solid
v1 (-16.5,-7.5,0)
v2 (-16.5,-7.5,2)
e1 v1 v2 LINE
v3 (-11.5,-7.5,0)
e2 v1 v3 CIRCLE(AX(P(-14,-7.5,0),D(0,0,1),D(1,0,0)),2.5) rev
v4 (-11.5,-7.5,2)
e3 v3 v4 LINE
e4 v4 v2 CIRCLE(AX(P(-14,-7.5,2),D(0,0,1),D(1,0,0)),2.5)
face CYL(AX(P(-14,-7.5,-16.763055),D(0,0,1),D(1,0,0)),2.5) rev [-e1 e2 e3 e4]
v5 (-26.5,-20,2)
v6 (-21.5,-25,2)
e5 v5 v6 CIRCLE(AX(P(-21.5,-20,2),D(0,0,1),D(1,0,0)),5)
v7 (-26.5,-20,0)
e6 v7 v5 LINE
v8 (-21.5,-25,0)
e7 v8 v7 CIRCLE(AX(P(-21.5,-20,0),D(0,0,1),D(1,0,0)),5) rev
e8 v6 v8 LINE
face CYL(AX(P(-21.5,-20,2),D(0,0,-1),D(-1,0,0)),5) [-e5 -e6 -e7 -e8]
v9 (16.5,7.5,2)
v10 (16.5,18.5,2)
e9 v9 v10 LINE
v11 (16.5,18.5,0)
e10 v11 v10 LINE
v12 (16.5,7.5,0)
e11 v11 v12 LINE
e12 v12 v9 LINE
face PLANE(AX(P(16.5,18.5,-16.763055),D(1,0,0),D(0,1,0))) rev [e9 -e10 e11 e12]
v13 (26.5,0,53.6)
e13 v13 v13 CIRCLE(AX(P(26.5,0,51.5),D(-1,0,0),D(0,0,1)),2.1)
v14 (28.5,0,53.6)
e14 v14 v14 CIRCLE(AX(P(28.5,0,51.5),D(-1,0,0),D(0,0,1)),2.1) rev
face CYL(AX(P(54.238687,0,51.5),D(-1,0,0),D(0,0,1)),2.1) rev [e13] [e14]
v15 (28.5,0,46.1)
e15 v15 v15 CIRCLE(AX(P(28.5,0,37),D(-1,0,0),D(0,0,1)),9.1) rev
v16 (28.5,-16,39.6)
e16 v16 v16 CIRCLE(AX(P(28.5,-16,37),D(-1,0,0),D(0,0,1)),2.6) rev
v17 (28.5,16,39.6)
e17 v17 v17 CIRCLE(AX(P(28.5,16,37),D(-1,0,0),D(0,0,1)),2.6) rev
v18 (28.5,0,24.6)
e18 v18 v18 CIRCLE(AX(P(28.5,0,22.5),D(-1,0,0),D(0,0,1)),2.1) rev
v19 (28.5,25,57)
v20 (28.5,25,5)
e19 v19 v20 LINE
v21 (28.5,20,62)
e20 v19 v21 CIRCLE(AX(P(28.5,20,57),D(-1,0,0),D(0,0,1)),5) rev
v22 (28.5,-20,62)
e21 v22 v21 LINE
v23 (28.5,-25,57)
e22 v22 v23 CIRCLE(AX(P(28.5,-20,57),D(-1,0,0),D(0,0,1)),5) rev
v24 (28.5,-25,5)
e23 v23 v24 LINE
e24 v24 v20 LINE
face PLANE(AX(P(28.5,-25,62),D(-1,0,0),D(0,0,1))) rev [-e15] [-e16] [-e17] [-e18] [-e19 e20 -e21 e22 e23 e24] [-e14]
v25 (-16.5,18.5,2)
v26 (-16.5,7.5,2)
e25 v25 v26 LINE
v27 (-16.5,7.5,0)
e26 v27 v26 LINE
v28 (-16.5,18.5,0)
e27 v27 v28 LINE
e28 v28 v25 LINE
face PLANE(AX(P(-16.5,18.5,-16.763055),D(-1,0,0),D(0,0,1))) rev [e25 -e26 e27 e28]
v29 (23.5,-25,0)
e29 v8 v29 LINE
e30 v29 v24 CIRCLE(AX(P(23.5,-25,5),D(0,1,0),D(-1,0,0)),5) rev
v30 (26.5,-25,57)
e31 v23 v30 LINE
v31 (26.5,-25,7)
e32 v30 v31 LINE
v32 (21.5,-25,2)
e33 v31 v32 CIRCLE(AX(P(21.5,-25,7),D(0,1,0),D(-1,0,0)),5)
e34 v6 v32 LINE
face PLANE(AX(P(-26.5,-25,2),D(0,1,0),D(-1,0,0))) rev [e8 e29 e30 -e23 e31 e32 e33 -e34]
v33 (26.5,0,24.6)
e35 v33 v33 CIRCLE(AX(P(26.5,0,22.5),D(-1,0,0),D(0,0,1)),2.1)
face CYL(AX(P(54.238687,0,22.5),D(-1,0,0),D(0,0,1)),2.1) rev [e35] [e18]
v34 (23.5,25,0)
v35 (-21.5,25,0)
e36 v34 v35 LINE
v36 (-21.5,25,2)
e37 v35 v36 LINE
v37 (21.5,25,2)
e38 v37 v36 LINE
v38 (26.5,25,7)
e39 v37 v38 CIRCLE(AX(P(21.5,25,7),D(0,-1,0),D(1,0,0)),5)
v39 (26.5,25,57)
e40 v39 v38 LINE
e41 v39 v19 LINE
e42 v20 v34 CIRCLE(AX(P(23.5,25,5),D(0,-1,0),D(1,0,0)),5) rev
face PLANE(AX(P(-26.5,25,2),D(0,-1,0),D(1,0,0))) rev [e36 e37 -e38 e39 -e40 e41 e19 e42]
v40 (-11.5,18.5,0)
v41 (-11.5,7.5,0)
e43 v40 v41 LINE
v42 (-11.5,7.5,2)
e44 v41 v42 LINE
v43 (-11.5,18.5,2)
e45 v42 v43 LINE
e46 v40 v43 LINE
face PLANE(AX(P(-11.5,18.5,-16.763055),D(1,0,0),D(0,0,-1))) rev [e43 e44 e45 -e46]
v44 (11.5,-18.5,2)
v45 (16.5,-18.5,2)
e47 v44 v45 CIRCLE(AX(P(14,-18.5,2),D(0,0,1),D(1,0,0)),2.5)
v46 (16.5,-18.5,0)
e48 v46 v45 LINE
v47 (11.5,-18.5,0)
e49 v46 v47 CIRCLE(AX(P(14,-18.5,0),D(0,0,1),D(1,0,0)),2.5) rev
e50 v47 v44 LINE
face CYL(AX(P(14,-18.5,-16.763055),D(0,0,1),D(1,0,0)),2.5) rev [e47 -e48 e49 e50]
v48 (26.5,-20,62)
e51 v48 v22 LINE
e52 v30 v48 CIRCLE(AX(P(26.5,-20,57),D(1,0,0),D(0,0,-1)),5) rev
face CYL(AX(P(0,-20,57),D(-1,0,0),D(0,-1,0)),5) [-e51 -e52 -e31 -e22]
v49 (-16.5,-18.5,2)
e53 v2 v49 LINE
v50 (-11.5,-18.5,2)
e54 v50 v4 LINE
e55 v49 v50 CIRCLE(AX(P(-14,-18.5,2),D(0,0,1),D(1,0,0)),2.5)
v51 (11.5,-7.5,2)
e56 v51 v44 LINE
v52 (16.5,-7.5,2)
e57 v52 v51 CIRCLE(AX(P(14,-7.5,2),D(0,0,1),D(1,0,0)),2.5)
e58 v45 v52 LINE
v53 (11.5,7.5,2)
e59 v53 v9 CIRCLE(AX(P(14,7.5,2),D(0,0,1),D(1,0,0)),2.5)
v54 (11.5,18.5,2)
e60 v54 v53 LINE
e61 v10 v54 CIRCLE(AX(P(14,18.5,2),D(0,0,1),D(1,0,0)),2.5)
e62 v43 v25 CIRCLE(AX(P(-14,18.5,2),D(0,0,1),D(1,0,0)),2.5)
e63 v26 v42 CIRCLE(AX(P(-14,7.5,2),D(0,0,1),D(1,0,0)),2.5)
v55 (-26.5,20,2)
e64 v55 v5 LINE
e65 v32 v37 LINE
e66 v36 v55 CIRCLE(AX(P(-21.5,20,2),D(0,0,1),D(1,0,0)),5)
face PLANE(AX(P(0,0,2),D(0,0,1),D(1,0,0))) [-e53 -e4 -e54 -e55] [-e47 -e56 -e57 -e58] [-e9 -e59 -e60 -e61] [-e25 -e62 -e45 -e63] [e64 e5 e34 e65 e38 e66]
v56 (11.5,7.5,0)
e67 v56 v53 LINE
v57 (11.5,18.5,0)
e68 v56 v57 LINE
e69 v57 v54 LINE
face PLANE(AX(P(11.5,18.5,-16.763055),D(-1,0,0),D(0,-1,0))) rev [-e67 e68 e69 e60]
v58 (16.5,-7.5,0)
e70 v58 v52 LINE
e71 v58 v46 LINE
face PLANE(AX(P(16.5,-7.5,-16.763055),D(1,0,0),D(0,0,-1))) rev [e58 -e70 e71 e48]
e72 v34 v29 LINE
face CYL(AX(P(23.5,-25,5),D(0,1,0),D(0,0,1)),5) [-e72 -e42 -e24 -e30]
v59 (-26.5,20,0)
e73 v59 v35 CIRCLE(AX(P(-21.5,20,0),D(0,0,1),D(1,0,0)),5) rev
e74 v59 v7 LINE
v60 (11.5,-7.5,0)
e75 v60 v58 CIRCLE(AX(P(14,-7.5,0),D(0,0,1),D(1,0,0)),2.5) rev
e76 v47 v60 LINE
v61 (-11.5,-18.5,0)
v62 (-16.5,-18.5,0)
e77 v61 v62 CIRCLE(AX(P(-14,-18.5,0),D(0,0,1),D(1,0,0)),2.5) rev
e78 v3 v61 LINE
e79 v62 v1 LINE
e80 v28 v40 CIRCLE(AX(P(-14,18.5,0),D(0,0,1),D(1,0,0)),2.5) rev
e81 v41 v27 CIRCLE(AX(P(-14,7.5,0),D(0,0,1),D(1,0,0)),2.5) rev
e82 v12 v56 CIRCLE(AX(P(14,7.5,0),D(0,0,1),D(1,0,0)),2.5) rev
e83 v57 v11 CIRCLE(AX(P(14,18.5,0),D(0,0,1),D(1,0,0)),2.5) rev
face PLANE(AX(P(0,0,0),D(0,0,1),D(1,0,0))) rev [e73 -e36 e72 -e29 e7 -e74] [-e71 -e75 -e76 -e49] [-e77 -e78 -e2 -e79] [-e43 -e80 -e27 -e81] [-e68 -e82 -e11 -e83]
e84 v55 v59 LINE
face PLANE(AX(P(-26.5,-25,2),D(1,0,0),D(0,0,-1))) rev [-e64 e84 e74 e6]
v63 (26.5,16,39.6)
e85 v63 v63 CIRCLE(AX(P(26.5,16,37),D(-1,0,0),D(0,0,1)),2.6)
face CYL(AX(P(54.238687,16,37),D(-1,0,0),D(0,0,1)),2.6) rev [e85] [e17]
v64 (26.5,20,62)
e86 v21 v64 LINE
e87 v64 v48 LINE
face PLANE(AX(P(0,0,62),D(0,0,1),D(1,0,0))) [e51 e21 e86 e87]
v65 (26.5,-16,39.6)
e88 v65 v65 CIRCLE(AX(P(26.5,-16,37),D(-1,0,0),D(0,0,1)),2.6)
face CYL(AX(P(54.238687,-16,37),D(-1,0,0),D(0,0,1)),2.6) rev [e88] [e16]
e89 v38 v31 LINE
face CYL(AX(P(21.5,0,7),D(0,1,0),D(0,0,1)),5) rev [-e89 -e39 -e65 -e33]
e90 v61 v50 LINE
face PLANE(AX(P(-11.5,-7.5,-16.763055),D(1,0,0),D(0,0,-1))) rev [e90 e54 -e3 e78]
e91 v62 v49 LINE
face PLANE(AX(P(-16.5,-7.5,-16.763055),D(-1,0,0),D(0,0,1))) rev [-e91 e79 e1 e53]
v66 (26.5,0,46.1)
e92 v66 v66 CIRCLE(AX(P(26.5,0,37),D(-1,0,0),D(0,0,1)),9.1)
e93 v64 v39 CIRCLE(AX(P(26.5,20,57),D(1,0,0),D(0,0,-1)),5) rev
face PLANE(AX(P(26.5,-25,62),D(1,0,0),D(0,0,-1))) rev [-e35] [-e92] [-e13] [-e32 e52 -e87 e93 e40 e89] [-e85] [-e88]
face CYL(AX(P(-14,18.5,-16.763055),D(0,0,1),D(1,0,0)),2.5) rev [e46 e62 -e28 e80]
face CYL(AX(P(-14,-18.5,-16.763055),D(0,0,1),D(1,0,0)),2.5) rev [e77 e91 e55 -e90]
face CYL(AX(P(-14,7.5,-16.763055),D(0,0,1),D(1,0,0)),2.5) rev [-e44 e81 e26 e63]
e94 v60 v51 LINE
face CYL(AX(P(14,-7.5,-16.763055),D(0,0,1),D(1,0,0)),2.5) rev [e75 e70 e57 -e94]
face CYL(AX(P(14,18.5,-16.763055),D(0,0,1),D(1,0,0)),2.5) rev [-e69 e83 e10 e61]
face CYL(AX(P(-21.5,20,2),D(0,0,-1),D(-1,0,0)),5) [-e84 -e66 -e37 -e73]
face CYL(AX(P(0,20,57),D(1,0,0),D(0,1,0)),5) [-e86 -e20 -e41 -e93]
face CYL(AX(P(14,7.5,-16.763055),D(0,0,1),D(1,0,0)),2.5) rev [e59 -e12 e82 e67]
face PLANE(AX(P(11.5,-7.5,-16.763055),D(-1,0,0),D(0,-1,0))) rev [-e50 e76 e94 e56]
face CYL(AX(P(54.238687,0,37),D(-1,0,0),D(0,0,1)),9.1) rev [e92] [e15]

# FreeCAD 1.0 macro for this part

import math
import FreeCAD as App
import Part
import Sketcher

V = App.Vector
Q = App.Units.Quantity


def edges_at(feature, points):
    """Names of the edges that pass closest to the given points."""
    edges = feature.Shape.Edges
    near = lambda p: min(range(len(edges)), key=lambda i: edges[i].distToShape(Part.Vertex(*p))[0])
    return sorted({f"Edge{near(p) + 1}" for p in points})

doc = App.newDocument("Part")
body = doc.addObject("PartDesign::Body", "Body")

# Sketch on XY plane
sketch1 = body.newObject("Sketcher::SketchObject", "Sketch")
sketch1.AttachmentSupport = (doc.getObject("XY_Plane"), [""])
sketch1.MapMode = "FlatFace"
sketch1.addGeometry([
    Part.LineSegment(V(-26, -25, 0), V(26, -25, 0)),
    Part.LineSegment(V(26, -25, 0), V(26, 25, 0)),
    Part.LineSegment(V(26, 25, 0), V(-26, 25, 0)),
    Part.LineSegment(V(-26, 25, 0), V(-26, -25, 0)),
], False)
sketch1.addConstraint([
    Sketcher.Constraint("Coincident", 0, 2, 1, 1),
    Sketcher.Constraint("Coincident", 1, 2, 2, 1),
    Sketcher.Constraint("Coincident", 2, 2, 3, 1),
    Sketcher.Constraint("Coincident", 3, 2, 0, 1),
    Sketcher.Constraint("Horizontal", 0),
    Sketcher.Constraint("Vertical", 1),
    Sketcher.Constraint("Horizontal", 2),
    Sketcher.Constraint("Vertical", 3),
    Sketcher.Constraint("Symmetric", 0, 2, 2, 2, -1, 1),
    Sketcher.Constraint("DistanceX", 0, 1, 0, 2, Q("53 mm")),
    Sketcher.Constraint("DistanceY", 1, 1, 1, 2, Q("50 mm")),
])
pad1 = body.newObject("PartDesign::Pad", "Pad")
pad1.Profile = sketch1
pad1.Length = 2

# Sketch on XY plane
sketch2 = body.newObject("Sketcher::SketchObject", "Sketch001")
sketch2.AttachmentSupport = (doc.getObject("XY_Plane"), [""])
sketch2.MapMode = "FlatFace"
sketch2.addGeometry([
    Part.LineSegment(V(26.5, -25, 0), V(28.5, -25, 0)),
    Part.LineSegment(V(28.5, -25, 0), V(28.5, 25, 0)),
    Part.LineSegment(V(28.5, 25, 0), V(26.5, 25, 0)),
    Part.LineSegment(V(26.5, 25, 0), V(26.5, -25, 0)),
], False)
sketch2.addConstraint([
    Sketcher.Constraint("Coincident", 0, 2, 1, 1),
    Sketcher.Constraint("Coincident", 1, 2, 2, 1),
    Sketcher.Constraint("Coincident", 2, 2, 3, 1),
    Sketcher.Constraint("Coincident", 3, 2, 0, 1),
    Sketcher.Constraint("Horizontal", 0),
    Sketcher.Constraint("Vertical", 1),
    Sketcher.Constraint("Horizontal", 2),
    Sketcher.Constraint("Vertical", 3),
    Sketcher.Constraint("DistanceX", 0, 1, 0, 2, Q("2 mm")),
    Sketcher.Constraint("DistanceY", 1, 1, 1, 2, Q("50 mm")),
    Sketcher.Constraint("DistanceY", 0, 2, -1, 1, Q("25 mm")),
    Sketcher.Constraint("DistanceX", -1, 1, 0, 2, Q("28.5 mm")),
])
pad2 = body.newObject("PartDesign::Pad", "Pad001")
pad2.Profile = sketch2
pad2.Length = 62

# Sketch on YZ plane
sketch3 = body.newObject("Sketcher::SketchObject", "Sketch002")
sketch3.AttachmentSupport = (doc.getObject("YZ_Plane"), [""])
sketch3.MapMode = "FlatFace"
sketch3.AttachmentOffset = App.Placement(V(0, 0, 26.5), App.Rotation())
sketch3.addGeometry([
    Part.Circle(V(0, 37, 0), V(0, 0, 1), 9.1),  # 0
    Part.Circle(V(-16, 37, 0), V(0, 0, 1), 2.6),  # 1
    Part.Circle(V(16, 37, 0), V(0, 0, 1), 2.6),  # 2
    Part.Circle(V(0, 51.5, 0), V(0, 0, 1), 2.1),  # 3
    Part.Circle(V(0, 22.5, 0), V(0, 0, 1), 2.1),  # 4
], False)
sketch3.addConstraint([
    Sketcher.Constraint("Equal", 1, 2),
    Sketcher.Constraint("Equal", 3, 4),
    Sketcher.Constraint("Symmetric", 1, 3, 2, 3, -2),
    Sketcher.Constraint("PointOnObject", 0, 3, -2),
    Sketcher.Constraint("PointOnObject", 3, 3, -2),
    Sketcher.Constraint("PointOnObject", 4, 3, -2),
    Sketcher.Constraint("Horizontal", 0, 3, 1, 3),
    Sketcher.Constraint("Diameter", 0, Q("18.2 mm")),
    Sketcher.Constraint("Diameter", 1, Q("5.2 mm")),
    Sketcher.Constraint("Diameter", 3, Q("4.2 mm")),
    Sketcher.Constraint("DistanceY", -1, 1, 0, 3, Q("37 mm")),
    Sketcher.Constraint("DistanceX", 1, 3, -1, 1, Q("16 mm")),
    Sketcher.Constraint("DistanceY", 4, 3, 3, 3, Q("29 mm")),
    Sketcher.Constraint("DistanceY", -1, 1, 3, 3, Q("51.5 mm")),
])
pocket1 = body.newObject("PartDesign::Pocket", "Pocket")
pocket1.Profile = sketch3
pocket1.Length = 2
pocket1.Reversed = True

# Sketch on XY plane
sketch4 = body.newObject("Sketcher::SketchObject", "Sketch003")
sketch4.AttachmentSupport = (doc.getObject("XY_Plane"), [""])
sketch4.MapMode = "FlatFace"
sketch4.AttachmentOffset = App.Placement(V(0, 0, 2), App.Rotation())
sketch4.addGeometry([
    Part.LineSegment(V(-11.5, 7.5, 0), V(-11.5, 18.5, 0)),  # 0
    Part.ArcOfCircle(Part.Circle(V(-14, 18.5, 0), V(0, 0, 1), 2.5), math.radians(0), math.radians(180)),  # 1
    Part.LineSegment(V(-16.5, 18.5, 0), V(-16.5, 7.5, 0)),  # 2
    Part.ArcOfCircle(Part.Circle(V(-14, 7.5, 0), V(0, 0, 1), 2.5), math.radians(180), math.radians(360)),  # 3
    Part.LineSegment(V(-11.5, -18.5, 0), V(-11.5, -7.5, 0)),  # 4
    Part.ArcOfCircle(Part.Circle(V(-14, -7.5, 0), V(0, 0, 1), 2.5), math.radians(0), math.radians(180)),  # 5
    Part.LineSegment(V(-16.5, -7.5, 0), V(-16.5, -18.5, 0)),  # 6
    Part.ArcOfCircle(Part.Circle(V(-14, -18.5, 0), V(0, 0, 1), 2.5), math.radians(180), math.radians(360)),  # 7
    Part.LineSegment(V(16.5, 7.5, 0), V(16.5, 18.5, 0)),  # 8
    Part.ArcOfCircle(Part.Circle(V(14, 18.5, 0), V(0, 0, 1), 2.5), math.radians(0), math.radians(180)),  # 9
    Part.LineSegment(V(11.5, 18.5, 0), V(11.5, 7.5, 0)),  # 10
    Part.ArcOfCircle(Part.Circle(V(14, 7.5, 0), V(0, 0, 1), 2.5), math.radians(180), math.radians(360)),  # 11
    Part.LineSegment(V(16.5, -18.5, 0), V(16.5, -7.5, 0)),  # 12
    Part.ArcOfCircle(Part.Circle(V(14, -7.5, 0), V(0, 0, 1), 2.5), math.radians(0), math.radians(180)),  # 13
    Part.LineSegment(V(11.5, -7.5, 0), V(11.5, -18.5, 0)),  # 14
    Part.ArcOfCircle(Part.Circle(V(14, -18.5, 0), V(0, 0, 1), 2.5), math.radians(180), math.radians(360)),  # 15
], False)
sketch4.addConstraint([
    Sketcher.Constraint("Tangent", 0, 2, 1, 1),
    Sketcher.Constraint("Tangent", 1, 2, 2, 1),
    Sketcher.Constraint("Tangent", 2, 2, 3, 1),
    Sketcher.Constraint("Tangent", 3, 2, 0, 1),
    Sketcher.Constraint("Tangent", 4, 2, 5, 1),
    Sketcher.Constraint("Tangent", 5, 2, 6, 1),
    Sketcher.Constraint("Tangent", 6, 2, 7, 1),
    Sketcher.Constraint("Tangent", 7, 2, 4, 1),
    Sketcher.Constraint("Tangent", 8, 2, 9, 1),
    Sketcher.Constraint("Tangent", 9, 2, 10, 1),
    Sketcher.Constraint("Tangent", 10, 2, 11, 1),
    Sketcher.Constraint("Tangent", 11, 2, 8, 1),
    Sketcher.Constraint("Tangent", 12, 2, 13, 1),
    Sketcher.Constraint("Tangent", 13, 2, 14, 1),
    Sketcher.Constraint("Tangent", 14, 2, 15, 1),
    Sketcher.Constraint("Tangent", 15, 2, 12, 1),
    Sketcher.Constraint("Vertical", 0),
    Sketcher.Constraint("Vertical", 2),
    Sketcher.Constraint("Vertical", 4),
    Sketcher.Constraint("Vertical", 6),
    Sketcher.Constraint("Vertical", 8),
    Sketcher.Constraint("Vertical", 10),
    Sketcher.Constraint("Vertical", 12),
    Sketcher.Constraint("Vertical", 14),
    Sketcher.Constraint("Equal", 3, 5),
    Sketcher.Constraint("Equal", 7, 9),
    Sketcher.Constraint("Equal", 11, 13),
    Sketcher.Constraint("Symmetric", 7, 3, 9, 3, -1, 1),
    Sketcher.Constraint("Symmetric", 3, 3, 13, 3, -1, 1),
    Sketcher.Constraint("Symmetric", 1, 3, 9, 3, -2),
    Sketcher.Constraint("Horizontal", 3, 3, 11, 3),
    Sketcher.Constraint("Horizontal", 5, 3, 13, 3),
    Sketcher.Constraint("Horizontal", 7, 3, 15, 3),
    Sketcher.Constraint("Radius", 1, Q("2.5 mm")),
    Sketcher.Constraint("DistanceY", 0, 1, 0, 2, Q("11 mm")),
    Sketcher.Constraint("DistanceX", 1, 3, -1, 1, Q("14 mm")),
    Sketcher.Constraint("DistanceY", 5, 3, 3, 3, Q("15 mm")),
])
pocket2 = body.newObject("PartDesign::Pocket", "Pocket001")
pocket2.Profile = sketch4
pocket2.Length = 2
doc.recompute()

fillet = body.newObject("PartDesign::Fillet", "Fillet")
fillet.Base = (pocket2, edges_at(pocket2, [
    (28.5, 0, 0),
    (27.5, -25, 62),
    (26.5, 0, 2),
    (27.5, 25, 62),
    (-26.5, -25, 1),
    (-26.5, 25, 1),
]))
fillet.Radius = 5

doc.recompute()
